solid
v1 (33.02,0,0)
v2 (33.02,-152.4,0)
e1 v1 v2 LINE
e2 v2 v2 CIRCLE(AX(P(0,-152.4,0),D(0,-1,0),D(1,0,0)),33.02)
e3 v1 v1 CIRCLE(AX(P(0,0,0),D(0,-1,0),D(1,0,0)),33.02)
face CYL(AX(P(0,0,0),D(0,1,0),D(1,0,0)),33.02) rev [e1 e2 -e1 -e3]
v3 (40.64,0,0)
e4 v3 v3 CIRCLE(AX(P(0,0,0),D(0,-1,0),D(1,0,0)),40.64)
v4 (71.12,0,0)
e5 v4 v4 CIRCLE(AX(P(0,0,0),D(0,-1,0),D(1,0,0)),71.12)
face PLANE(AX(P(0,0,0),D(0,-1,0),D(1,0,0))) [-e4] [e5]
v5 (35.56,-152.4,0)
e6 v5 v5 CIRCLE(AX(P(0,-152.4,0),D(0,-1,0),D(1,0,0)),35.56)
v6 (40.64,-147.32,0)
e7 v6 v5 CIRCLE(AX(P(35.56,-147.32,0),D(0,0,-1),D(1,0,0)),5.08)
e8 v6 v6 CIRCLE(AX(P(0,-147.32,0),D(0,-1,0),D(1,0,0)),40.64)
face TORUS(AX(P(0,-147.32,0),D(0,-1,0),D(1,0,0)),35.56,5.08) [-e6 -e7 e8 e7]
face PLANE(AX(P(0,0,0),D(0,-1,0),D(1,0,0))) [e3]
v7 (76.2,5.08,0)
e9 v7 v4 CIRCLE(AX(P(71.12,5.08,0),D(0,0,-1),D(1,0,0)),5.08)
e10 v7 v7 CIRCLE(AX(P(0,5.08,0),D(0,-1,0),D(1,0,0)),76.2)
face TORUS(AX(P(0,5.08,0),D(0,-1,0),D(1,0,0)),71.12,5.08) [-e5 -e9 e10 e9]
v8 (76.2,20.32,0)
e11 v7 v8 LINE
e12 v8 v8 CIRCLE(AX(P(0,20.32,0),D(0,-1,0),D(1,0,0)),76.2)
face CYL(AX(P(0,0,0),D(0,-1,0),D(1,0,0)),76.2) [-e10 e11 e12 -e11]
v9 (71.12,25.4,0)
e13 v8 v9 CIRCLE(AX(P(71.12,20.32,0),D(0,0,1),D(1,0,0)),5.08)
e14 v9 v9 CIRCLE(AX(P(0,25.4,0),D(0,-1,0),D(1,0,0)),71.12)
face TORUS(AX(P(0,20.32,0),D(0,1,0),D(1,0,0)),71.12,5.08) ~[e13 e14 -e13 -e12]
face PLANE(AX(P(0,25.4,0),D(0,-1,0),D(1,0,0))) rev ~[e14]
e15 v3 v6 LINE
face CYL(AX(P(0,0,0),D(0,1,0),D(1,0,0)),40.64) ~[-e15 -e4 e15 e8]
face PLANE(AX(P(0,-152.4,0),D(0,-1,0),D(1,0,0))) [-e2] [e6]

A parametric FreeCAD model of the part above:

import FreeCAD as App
import Part
import Sketcher
Q = App.Units.Quantity


def edges_at(feature, points):
    """Names of the edges that pass closest to the given points."""
    edges = feature.Shape.Edges
    near = lambda p: min(range(len(edges)), key=lambda i: edges[i].distToShape(Part.Vertex(*p))[0])
    return sorted({f"Edge{near(p) + 1}" for p in points})

doc = App.newDocument("Part")
body = doc.addObject("PartDesign::Body", "Body")

sketch1 = body.newObject("Sketcher::SketchObject", "Sketch")
sketch1.AttachmentSupport = (doc.getObject("XZ_Plane"), [""])
sketch1.MapMode = "FlatFace"
sketch1.addGeometry([
    Part.Circle(App.Vector(0, 0, 0), App.Vector(0, 0, 1), 41),
    Part.Circle(App.Vector(0, 0, 0), App.Vector(0, 0, 1), 33),
], False)
sketch1.addConstraint([
    Sketcher.Constraint("Coincident", 0, 3, -1, 1),
    Sketcher.Constraint("Coincident", 1, 3, -1, 1),
    Sketcher.Constraint("Diameter", 0, Q("3.2 in")),
    Sketcher.Constraint("Diameter", 1, Q("2.6 in")),
])
pad1 = body.newObject("PartDesign::Pad", "Pad")
pad1.Profile = sketch1
pad1.Length = Q("6 in")

sketch2 = body.newObject("Sketcher::SketchObject", "Sketch001")
sketch2.AttachmentSupport = (doc.getObject("XZ_Plane"), [""])
sketch2.MapMode = "FlatFace"
sketch2.addGeometry(Part.Circle(App.Vector(0, 0, 0), App.Vector(0, 0, 1), 76), False)
sketch2.addConstraint([
    Sketcher.Constraint("Coincident", 0, 3, -1, 1),
    Sketcher.Constraint("Diameter", 0, Q("6 in")),
])
pad2 = body.newObject("PartDesign::Pad", "Pad001")
pad2.Profile = sketch2
pad2.Length = Q("1 in")
pad2.Reversed = True
doc.recompute()

fillet = body.newObject("PartDesign::Fillet", "Fillet")
fillet.Base = (pad2, edges_at(pad2, [(76.2, 12.7, 0), (-76.2, 0, 0), (-76.2, 25.4, 0)]))
fillet.Radius = Q("0.2 in")
doc.recompute()

fillet2 = body.newObject("PartDesign::Fillet", "Fillet001")
fillet2.Base = (fillet, edges_at(fillet, [(-40.64, -152.4, 0)]))
fillet2.Radius = Q("0.2 in")

doc.recompute()
